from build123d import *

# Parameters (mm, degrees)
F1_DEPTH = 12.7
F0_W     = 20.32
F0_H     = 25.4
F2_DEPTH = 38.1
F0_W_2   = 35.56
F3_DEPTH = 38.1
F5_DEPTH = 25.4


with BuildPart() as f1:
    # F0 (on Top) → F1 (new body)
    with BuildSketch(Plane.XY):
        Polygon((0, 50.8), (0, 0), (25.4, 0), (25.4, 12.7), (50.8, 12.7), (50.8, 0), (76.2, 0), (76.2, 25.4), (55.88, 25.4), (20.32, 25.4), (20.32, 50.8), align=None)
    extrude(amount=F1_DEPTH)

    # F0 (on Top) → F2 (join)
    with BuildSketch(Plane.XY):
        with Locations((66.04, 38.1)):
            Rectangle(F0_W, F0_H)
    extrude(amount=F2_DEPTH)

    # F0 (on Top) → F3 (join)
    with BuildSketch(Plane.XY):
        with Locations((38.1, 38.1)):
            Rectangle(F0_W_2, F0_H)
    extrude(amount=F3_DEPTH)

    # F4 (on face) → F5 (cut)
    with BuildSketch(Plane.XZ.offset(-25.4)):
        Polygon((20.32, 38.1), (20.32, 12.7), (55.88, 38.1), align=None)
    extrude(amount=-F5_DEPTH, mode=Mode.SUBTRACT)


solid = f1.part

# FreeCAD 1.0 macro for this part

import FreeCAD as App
import Part
import Sketcher
Q = App.Units.Quantity


def add_polygon(sketch, points):
    """Adds a closed chain of lines whose ends are joined by coincident constraints."""
    first, n = sketch.GeometryCount, len(points)
    for a, b in zip(points, points[1:] + points[:1]):
        sketch.addGeometry(Part.LineSegment(App.Vector(*a, 0), App.Vector(*b, 0)), False)
    for i in range(n):
        sketch.addConstraint(Sketcher.Constraint("Coincident", first + i, 2, first + (i + 1) % n, 1))

doc = App.newDocument("Part")
params = doc.addObject("Spreadsheet::Sheet", "Params")
for row, (alias, value) in enumerate([
    ("sketch1_width", "1 in"),
    ("sketch1_width2", "2.2 in"),
    ("sketch1_height", "0.5 in"),
    ("pad1_length", "0.5 in"),
    ("sketch2_height", "1 in"),
    ("sketch2_width", "0.8 in"),
    ("pad2_length", "1.5 in"),
    ("sketch3_height", "1 in"),
    ("sketch3_width", "1.4 in"),
    ("pad3_length", "1.5 in"),
    ("sketch4_height", "1 in"),
    ("sketch4_width", "1.4 in"),
    ("pocket1_length", "1 in"),
], start=1):
    params.set(f"A{row}", alias)
    params.set(f"B{row}", "=" + value)
    params.setAlias(f"B{row}", alias)

body = doc.addObject("PartDesign::Body", "Body")

# Sketch on XY plane
sketch1 = doc.addObject("Sketcher::SketchObject", "Sketch")
body.addObject(sketch1)
sketch1.AttachmentSupport = (doc.XY_Plane, [""])
sketch1.MapMode = "FlatFace"
add_polygon(sketch1, [(0, 50.8), (0, 0), (25.4, 0), (25.4, 12.7), (50.8, 12.7), (50.8, 0), (76.2, 0), (76.2, 25.4), (20.32, 25.4), (20.32, 50.8)])  # lines 0-9
sketch1.addConstraint(Sketcher.Constraint("Vertical", 0))
sketch1.addConstraint(Sketcher.Constraint("Horizontal", 1))
sketch1.addConstraint(Sketcher.Constraint("Vertical", 2))
sketch1.addConstraint(Sketcher.Constraint("Horizontal", 3))
sketch1.addConstraint(Sketcher.Constraint("Vertical", 4))
sketch1.addConstraint(Sketcher.Constraint("Horizontal", 5))
sketch1.addConstraint(Sketcher.Constraint("Vertical", 6))
sketch1.addConstraint(Sketcher.Constraint("Horizontal", 7))
sketch1.addConstraint(Sketcher.Constraint("Vertical", 8))
sketch1.addConstraint(Sketcher.Constraint("Horizontal", 9))
sketch1.addConstraint(Sketcher.Constraint("Coincident", 0, 2, -1, 1))
sketch1.addConstraint(Sketcher.Constraint("PointOnObject", 4, 2, -1))
sketch1.addConstraint(Sketcher.Constraint("Equal", 1, 3))
sketch1.addConstraint(Sketcher.Constraint("Equal", 3, 5))
sketch1.addConstraint(Sketcher.Constraint("Equal", 5, 6))
sketch1.addConstraint(Sketcher.Constraint("Equal", 6, 8))
sketch1.addConstraint(Sketcher.Constraint("DistanceX", 1, 1, 1, 2, Q("1 in")))
sketch1.addConstraint(Sketcher.Constraint("DistanceX", 7, 2, 7, 1, Q("2.2 in")))
sketch1.addConstraint(Sketcher.Constraint("DistanceY", 2, 1, 2, 2, Q("0.5 in")))
sketch1.setExpression("Constraints[26]", "Params.sketch1_width")
sketch1.setExpression("Constraints[27]", "Params.sketch1_width2")
sketch1.setExpression("Constraints[28]", "Params.sketch1_height")
pad1 = doc.addObject("PartDesign::Pad", "Pad")
body.addObject(pad1)
pad1.Profile = sketch1
pad1.setExpression("Length", "Params.pad1_length")

# Sketch on XY plane
sketch2 = doc.addObject("Sketcher::SketchObject", "Sketch001")
body.addObject(sketch2)
sketch2.AttachmentSupport = (doc.XY_Plane, [""])
sketch2.MapMode = "FlatFace"
add_polygon(sketch2, [(55.88, 50.8), (55.88, 25.4), (76.2, 25.4), (76.2, 50.8)])  # lines 0-3
sketch2.addConstraint(Sketcher.Constraint("Vertical", 0))
sketch2.addConstraint(Sketcher.Constraint("Horizontal", 1))
sketch2.addConstraint(Sketcher.Constraint("Vertical", 2))
sketch2.addConstraint(Sketcher.Constraint("Horizontal", 3))
sketch2.addConstraint(Sketcher.Constraint("DistanceY", 0, 2, 0, 1, Q("1 in")))
sketch2.addConstraint(Sketcher.Constraint("DistanceX", 1, 1, 1, 2, Q("0.8 in")))
sketch2.addConstraint(Sketcher.Constraint("DistanceY", -1, 1, 0, 2, Q("1 in")))
sketch2.addConstraint(Sketcher.Constraint("DistanceX", -1, 1, 1, 2, Q("3 in")))
sketch2.setExpression("Constraints[8]", "Params.sketch2_height")
sketch2.setExpression("Constraints[9]", "Params.sketch2_width")
pad2 = doc.addObject("PartDesign::Pad", "Pad001")
body.addObject(pad2)
pad2.Profile = sketch2
pad2.setExpression("Length", "Params.pad2_length")

# Sketch on XY plane
sketch3 = doc.addObject("Sketcher::SketchObject", "Sketch002")
body.addObject(sketch3)
sketch3.AttachmentSupport = (doc.XY_Plane, [""])
sketch3.MapMode = "FlatFace"
add_polygon(sketch3, [(20.32, 50.8), (20.32, 25.4), (55.88, 25.4), (55.88, 50.8)])  # lines 0-3
sketch3.addConstraint(Sketcher.Constraint("Vertical", 0))
sketch3.addConstraint(Sketcher.Constraint("Horizontal", 1))
sketch3.addConstraint(Sketcher.Constraint("Vertical", 2))
sketch3.addConstraint(Sketcher.Constraint("Horizontal", 3))
sketch3.addConstraint(Sketcher.Constraint("DistanceY", 0, 2, 0, 1, Q("1 in")))
sketch3.addConstraint(Sketcher.Constraint("DistanceX", 1, 1, 1, 2, Q("1.4 in")))
sketch3.addConstraint(Sketcher.Constraint("DistanceY", -1, 1, 0, 2, Q("1 in")))
sketch3.addConstraint(Sketcher.Constraint("DistanceX", -1, 1, 0, 2, Q("0.8 in")))
sketch3.setExpression("Constraints[8]", "Params.sketch3_height")
sketch3.setExpression("Constraints[9]", "Params.sketch3_width")
pad3 = doc.addObject("PartDesign::Pad", "Pad002")
body.addObject(pad3)
pad3.Profile = sketch3
pad3.setExpression("Length", "Params.pad3_length")

# Sketch on XZ plane
sketch4 = doc.addObject("Sketcher::SketchObject", "Sketch003")
body.addObject(sketch4)
sketch4.AttachmentSupport = (doc.XZ_Plane, [""])
sketch4.MapMode = "FlatFace"
sketch4.AttachmentOffset = App.Placement(App.Vector(0, 0, -1 * 25.4), App.Rotation())
add_polygon(sketch4, [(20.32, 38.1), (20.32, 12.7), (55.88, 38.1)])  # lines 0-2
sketch4.addConstraint(Sketcher.Constraint("Vertical", 0))
sketch4.addConstraint(Sketcher.Constraint("Horizontal", 2))
sketch4.addConstraint(Sketcher.Constraint("DistanceY", 0, 2, 0, 1, Q("1 in")))
sketch4.addConstraint(Sketcher.Constraint("DistanceX", 2, 2, 2, 1, Q("1.4 in")))
sketch4.addConstraint(Sketcher.Constraint("DistanceX", -1, 1, 0, 2, Q("0.8 in")))
sketch4.addConstraint(Sketcher.Constraint("DistanceY", -1, 1, 0, 2, Q("0.5 in")))
sketch4.setExpression("Constraints[5]", "Params.sketch4_height")
sketch4.setExpression("Constraints[6]", "Params.sketch4_width")
pocket1 = doc.addObject("PartDesign::Pocket", "Pocket")
body.addObject(pocket1)
pocket1.Profile = sketch4
pocket1.setExpression("Length", "Params.pocket1_length")

doc.recompute()
